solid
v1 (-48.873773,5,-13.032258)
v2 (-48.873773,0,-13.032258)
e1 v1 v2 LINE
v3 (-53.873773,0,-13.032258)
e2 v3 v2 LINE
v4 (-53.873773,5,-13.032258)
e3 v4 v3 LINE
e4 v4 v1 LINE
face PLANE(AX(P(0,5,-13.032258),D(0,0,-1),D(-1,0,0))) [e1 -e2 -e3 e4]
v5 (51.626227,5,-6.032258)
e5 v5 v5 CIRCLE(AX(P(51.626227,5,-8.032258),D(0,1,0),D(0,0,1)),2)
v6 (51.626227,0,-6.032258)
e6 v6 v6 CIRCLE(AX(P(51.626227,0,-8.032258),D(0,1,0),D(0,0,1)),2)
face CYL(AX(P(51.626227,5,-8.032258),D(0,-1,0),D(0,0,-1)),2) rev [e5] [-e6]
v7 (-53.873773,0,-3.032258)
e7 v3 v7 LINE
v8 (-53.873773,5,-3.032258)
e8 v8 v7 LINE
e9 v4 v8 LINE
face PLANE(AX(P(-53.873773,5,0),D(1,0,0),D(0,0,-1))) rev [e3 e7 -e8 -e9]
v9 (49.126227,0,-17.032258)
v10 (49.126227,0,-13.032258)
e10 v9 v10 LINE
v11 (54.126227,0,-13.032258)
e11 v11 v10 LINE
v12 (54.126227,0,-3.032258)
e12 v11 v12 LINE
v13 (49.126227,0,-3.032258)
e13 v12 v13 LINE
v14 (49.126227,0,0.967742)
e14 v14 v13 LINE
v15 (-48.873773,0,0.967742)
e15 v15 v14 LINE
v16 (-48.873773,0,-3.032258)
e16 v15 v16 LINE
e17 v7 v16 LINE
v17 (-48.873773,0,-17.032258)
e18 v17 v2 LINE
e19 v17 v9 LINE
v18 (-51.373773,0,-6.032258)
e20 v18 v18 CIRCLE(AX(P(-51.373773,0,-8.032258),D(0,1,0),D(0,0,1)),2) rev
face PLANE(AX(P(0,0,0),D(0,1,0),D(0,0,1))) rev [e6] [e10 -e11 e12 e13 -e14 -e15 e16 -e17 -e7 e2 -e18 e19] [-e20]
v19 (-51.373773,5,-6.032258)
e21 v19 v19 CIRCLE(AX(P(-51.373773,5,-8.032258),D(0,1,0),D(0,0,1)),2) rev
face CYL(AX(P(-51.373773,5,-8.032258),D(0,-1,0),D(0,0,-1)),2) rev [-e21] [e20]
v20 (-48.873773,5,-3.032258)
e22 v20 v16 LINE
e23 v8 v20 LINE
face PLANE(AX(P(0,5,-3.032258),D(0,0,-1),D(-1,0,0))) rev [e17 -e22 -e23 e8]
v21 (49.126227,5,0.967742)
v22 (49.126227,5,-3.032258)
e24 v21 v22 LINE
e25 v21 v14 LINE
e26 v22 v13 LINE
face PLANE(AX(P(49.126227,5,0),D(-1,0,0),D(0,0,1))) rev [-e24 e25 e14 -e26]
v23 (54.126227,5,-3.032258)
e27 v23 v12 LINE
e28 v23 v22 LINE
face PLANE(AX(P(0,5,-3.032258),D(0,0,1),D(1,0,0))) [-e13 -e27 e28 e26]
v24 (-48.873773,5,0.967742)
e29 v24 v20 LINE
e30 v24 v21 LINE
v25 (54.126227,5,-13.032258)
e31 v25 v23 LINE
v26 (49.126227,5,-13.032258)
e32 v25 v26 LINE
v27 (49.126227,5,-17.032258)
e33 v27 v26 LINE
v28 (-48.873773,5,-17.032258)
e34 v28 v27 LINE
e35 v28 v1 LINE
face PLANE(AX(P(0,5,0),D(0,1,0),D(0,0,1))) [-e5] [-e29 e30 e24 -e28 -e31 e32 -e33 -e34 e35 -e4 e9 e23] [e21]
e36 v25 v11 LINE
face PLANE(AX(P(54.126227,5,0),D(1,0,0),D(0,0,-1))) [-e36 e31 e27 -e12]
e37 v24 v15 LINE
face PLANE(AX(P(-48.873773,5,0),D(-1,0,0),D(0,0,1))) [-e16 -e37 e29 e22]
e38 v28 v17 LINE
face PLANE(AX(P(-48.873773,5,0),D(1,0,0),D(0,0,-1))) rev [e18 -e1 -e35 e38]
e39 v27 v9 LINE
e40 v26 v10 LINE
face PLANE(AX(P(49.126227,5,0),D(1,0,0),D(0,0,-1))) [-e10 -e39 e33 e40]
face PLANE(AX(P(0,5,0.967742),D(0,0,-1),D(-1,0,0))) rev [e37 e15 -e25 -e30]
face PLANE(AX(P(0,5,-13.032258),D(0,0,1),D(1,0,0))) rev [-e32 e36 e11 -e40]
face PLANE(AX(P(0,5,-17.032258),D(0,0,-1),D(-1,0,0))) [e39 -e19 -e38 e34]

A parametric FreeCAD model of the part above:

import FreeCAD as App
import Part
import Sketcher
from FreeCAD import Vector
Q = App.Units.Quantity


def add_polygon(sketch, points):
    """Adds a closed chain of lines whose ends are joined by coincident constraints."""
    first, n = sketch.GeometryCount, len(points)
    for a, b in zip(points, points[1:] + points[:1]):
        sketch.addGeometry(Part.LineSegment(App.Vector(*a, 0), App.Vector(*b, 0)), False)
    for i in range(n):
        sketch.addConstraint(Sketcher.Constraint("Coincident", first + i, 2, first + (i + 1) % n, 1))

doc = App.newDocument("Part")
params = doc.addObject("Spreadsheet::Sheet", "Params")
for row, (alias, value) in enumerate([
    ("sketch1_diameter", "4 mm"),
    ("sketch1_width", "98 mm"),
    ("sketch1_width2", "5 mm"),
    ("sketch1_height", "4 mm"),
    ("sketch1_height2", "10 mm"),
    ("pad1_length", "5 mm"),
], start=1):
    params.set(f"A{row}", alias)
    params.set(f"B{row}", "=" + value)
    params.setAlias(f"B{row}", alias)

body = doc.addObject("PartDesign::Body", "Body")

sketch1 = body.newObject("Sketcher::SketchObject", "Sketch")
sketch1.AttachmentSupport = (doc.getObject("XZ_Plane"), [""])
sketch1.MapMode = "FlatFace"
add_polygon(sketch1, [(49.126227, -17.032258), (-48.873773, -17.032258), (-48.873773, -13.032258), (-53.873773, -13.032258), (-53.873773, -3.032258), (-48.873773, -3.032258), (-48.873773, 0.967742), (49.126227, 0.967742), (49.126227, -3.032258), (54.126227, -3.032258), (54.126227, -13.032258), (49.126227, -13.032258)])
sketch1.addGeometry(Part.Circle(Vector(51.626227, -8.032258, 0), Vector(0, 0, 1), 2), False)
sketch1.addGeometry(Part.Circle(Vector(-51.373773, -8.032258, 0), Vector(0, 0, 1), 2), False)
sketch1.addConstraint(Sketcher.Constraint("Horizontal", 0))
sketch1.addConstraint(Sketcher.Constraint("Vertical", 1))
sketch1.addConstraint(Sketcher.Constraint("Horizontal", 2))
sketch1.addConstraint(Sketcher.Constraint("Vertical", 3))
sketch1.addConstraint(Sketcher.Constraint("Horizontal", 4))
sketch1.addConstraint(Sketcher.Constraint("Vertical", 5))
sketch1.addConstraint(Sketcher.Constraint("Horizontal", 6))
sketch1.addConstraint(Sketcher.Constraint("Vertical", 7))
sketch1.addConstraint(Sketcher.Constraint("Horizontal", 8))
sketch1.addConstraint(Sketcher.Constraint("Vertical", 9))
sketch1.addConstraint(Sketcher.Constraint("Horizontal", 10))
sketch1.addConstraint(Sketcher.Constraint("Vertical", 11))
sketch1.addConstraint(Sketcher.Constraint("Equal", 12, 13))
sketch1.addConstraint(Sketcher.Constraint("Horizontal", 12, 3, 13, 3))
sketch1.addConstraint(Sketcher.Constraint("Horizontal", 4, 2, 7, 2))
sketch1.addConstraint(Sketcher.Constraint("Horizontal", 2, 2, 9, 2))
sketch1.addConstraint(Sketcher.Constraint("Vertical", 1, 2, 4, 2))
sketch1.addConstraint(Sketcher.Constraint("Vertical", 7, 2, 10, 2))
sketch1.addConstraint(Sketcher.Constraint("Equal", 4, 8))
sketch1.addConstraint(Sketcher.Constraint("Equal", 1, 5))
sketch1.addConstraint(Sketcher.Constraint("Diameter", 12, Q("4 mm")))
sketch1.addConstraint(Sketcher.Constraint("DistanceX", 0, 2, 0, 1, Q("98 mm")))
sketch1.addConstraint(Sketcher.Constraint("DistanceX", 2, 2, 2, 1, Q("5 mm")))
sketch1.addConstraint(Sketcher.Constraint("DistanceY", 1, 1, 1, 2, Q("4 mm")))
sketch1.addConstraint(Sketcher.Constraint("DistanceY", 3, 1, 3, 2, Q("10 mm")))
sketch1.addConstraint(Sketcher.Constraint("DistanceX", 13, 3, 12, 3, Q("103 mm")))
sketch1.addConstraint(Sketcher.Constraint("DistanceY", 0, 2, 13, 3, Q("9 mm")))
sketch1.addConstraint(Sketcher.Constraint("DistanceX", 13, 3, 0, 2, Q("2.5 mm")))
sketch1.addConstraint(Sketcher.Constraint("DistanceY", 12, 3, -1, 1, Q("8.032258 mm")))
sketch1.addConstraint(Sketcher.Constraint("DistanceX", -1, 1, 12, 3, Q("51.626227 mm")))
sketch1.setExpression("Constraints[32]", "Params.sketch1_diameter")
sketch1.setExpression("Constraints[33]", "Params.sketch1_width")
sketch1.setExpression("Constraints[34]", "Params.sketch1_width2")
sketch1.setExpression("Constraints[35]", "Params.sketch1_height")
sketch1.setExpression("Constraints[36]", "Params.sketch1_height2")
pad1 = body.newObject("PartDesign::Pad", "Pad")
pad1.Profile = sketch1
pad1.setExpression("Length", "Params.pad1_length")
pad1.Reversed = True

doc.recompute()
